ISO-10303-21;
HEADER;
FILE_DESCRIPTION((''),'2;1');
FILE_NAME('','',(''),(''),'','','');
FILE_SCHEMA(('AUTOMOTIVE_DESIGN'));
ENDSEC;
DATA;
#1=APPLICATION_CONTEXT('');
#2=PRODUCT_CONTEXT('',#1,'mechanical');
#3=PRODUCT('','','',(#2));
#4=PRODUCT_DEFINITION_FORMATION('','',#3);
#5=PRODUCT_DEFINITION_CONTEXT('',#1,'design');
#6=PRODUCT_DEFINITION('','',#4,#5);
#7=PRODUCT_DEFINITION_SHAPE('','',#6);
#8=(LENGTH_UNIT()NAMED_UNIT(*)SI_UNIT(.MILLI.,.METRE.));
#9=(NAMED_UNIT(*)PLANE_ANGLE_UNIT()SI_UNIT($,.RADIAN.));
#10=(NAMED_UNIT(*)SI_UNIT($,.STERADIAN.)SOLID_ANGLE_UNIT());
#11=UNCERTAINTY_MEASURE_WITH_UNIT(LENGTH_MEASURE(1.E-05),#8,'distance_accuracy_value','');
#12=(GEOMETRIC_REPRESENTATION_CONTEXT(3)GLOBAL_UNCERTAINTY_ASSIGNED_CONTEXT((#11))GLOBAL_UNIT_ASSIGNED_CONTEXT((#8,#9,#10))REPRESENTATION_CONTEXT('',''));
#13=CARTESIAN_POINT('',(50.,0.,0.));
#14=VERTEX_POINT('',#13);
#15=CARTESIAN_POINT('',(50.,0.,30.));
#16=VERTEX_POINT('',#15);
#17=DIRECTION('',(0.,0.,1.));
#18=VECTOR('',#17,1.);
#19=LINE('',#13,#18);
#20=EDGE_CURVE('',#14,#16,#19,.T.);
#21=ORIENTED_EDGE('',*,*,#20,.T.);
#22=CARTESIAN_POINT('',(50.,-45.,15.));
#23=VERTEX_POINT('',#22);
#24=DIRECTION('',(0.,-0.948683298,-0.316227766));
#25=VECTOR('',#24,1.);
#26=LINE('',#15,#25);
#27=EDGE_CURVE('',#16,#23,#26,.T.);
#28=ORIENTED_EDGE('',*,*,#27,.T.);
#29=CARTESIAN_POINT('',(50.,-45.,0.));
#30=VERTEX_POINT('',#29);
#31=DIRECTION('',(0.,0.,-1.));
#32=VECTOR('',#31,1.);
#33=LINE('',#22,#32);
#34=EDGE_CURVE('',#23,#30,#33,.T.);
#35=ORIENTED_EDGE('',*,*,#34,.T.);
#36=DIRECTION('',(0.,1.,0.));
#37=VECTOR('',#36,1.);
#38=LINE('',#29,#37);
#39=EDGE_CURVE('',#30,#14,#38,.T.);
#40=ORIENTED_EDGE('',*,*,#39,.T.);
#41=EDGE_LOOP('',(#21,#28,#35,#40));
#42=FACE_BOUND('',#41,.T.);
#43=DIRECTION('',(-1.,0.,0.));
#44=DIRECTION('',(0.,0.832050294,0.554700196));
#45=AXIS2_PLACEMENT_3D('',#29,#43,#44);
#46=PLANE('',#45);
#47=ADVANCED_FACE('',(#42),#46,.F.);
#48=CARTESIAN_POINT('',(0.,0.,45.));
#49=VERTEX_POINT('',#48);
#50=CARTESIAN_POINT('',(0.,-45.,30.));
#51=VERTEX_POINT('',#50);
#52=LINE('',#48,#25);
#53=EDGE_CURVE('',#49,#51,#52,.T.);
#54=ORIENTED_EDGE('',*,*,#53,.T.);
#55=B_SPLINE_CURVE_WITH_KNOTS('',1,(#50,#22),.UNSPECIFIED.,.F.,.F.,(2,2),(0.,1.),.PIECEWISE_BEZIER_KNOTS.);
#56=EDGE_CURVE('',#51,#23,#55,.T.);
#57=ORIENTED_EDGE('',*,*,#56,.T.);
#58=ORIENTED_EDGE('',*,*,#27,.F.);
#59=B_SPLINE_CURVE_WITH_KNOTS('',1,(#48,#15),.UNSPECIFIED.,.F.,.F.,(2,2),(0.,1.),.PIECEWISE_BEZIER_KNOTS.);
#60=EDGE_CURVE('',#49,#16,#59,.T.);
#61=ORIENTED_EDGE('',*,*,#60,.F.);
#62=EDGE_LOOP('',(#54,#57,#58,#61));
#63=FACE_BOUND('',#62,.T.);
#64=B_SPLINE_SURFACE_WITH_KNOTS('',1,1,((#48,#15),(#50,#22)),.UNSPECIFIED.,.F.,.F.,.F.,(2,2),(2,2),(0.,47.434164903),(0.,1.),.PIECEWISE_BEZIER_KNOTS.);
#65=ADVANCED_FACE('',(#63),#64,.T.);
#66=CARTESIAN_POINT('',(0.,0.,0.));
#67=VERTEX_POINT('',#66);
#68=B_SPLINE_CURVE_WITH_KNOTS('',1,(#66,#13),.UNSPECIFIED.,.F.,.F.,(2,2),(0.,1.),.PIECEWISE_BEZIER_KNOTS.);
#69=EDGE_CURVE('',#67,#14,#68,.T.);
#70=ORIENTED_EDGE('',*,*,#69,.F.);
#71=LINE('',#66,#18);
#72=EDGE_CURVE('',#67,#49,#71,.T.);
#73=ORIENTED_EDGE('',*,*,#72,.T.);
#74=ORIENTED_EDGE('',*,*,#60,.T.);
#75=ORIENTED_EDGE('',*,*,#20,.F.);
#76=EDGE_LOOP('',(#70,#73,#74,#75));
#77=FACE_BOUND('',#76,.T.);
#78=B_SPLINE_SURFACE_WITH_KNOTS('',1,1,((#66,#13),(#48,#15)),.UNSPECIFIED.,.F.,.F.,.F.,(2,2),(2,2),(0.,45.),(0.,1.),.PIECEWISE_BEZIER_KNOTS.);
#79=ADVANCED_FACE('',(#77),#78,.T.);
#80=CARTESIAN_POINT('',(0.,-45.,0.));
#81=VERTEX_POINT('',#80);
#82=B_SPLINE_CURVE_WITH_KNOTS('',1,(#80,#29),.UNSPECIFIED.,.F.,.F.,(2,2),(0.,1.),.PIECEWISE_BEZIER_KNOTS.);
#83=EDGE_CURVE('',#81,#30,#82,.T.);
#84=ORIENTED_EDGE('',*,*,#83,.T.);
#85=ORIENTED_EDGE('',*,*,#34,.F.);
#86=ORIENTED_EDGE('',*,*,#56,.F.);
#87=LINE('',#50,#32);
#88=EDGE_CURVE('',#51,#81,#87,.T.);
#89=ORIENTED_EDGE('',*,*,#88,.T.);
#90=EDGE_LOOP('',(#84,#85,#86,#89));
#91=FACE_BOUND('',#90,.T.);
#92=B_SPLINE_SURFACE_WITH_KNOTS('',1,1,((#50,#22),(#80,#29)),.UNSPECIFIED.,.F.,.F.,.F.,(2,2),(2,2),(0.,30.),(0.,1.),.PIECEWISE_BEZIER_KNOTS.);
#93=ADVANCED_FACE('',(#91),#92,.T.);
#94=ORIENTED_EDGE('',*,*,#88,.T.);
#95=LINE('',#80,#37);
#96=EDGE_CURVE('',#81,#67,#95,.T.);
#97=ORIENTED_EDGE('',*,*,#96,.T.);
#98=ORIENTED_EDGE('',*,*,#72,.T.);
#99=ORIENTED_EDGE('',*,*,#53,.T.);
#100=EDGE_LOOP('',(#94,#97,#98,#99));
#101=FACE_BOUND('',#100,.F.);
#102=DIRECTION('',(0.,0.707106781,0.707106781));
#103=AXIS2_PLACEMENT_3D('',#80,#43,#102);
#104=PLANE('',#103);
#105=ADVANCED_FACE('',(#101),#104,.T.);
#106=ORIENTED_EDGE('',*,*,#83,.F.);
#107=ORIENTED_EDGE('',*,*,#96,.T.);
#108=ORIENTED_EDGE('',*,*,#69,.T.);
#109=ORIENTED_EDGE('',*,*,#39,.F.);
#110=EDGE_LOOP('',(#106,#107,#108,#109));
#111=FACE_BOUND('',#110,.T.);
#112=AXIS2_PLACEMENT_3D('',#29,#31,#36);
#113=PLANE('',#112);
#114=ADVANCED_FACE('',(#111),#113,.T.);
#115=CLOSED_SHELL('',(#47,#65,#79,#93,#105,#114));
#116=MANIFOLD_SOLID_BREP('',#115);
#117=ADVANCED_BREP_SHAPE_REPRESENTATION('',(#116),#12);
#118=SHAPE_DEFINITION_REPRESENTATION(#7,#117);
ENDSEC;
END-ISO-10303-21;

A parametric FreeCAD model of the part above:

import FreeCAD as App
import Part
import Sketcher


def add_polygon(sketch, points):
    """Adds a closed chain of lines whose ends are joined by coincident constraints."""
    first, n = sketch.GeometryCount, len(points)
    for a, b in zip(points, points[1:] + points[:1]):
        sketch.addGeometry(Part.LineSegment(App.Vector(*a, 0), App.Vector(*b, 0)), False)
    for i in range(n):
        sketch.addConstraint(Sketcher.Constraint("Coincident", first + i, 2, first + (i + 1) % n, 1))

doc = App.newDocument("Part")
params = doc.addObject("Spreadsheet::Sheet", "Params")
for row, (alias, value) in enumerate([
    ("sketch1_width", "45 mm"),
    ("sketch1_height", "30 mm"),
    ("sketch2_width", "45 mm"),
    ("sketch2_height", "30 mm"),
    ("sketch2_height2", "15 mm"),
], start=1):
    params.set(f"A{row}", alias)
    params.set(f"B{row}", "=" + value)
    params.setAlias(f"B{row}", alias)

body = doc.addObject("PartDesign::Body", "Body")

# Sketch on YZ plane
sketch1 = body.newObject("Sketcher::SketchObject", "Sketch")
sketch1.AttachmentSupport = (doc.getObject("YZ_Plane"), [""])
sketch1.MapMode = "FlatFace"
add_polygon(sketch1, [(-45, 0), (0, 0), (0, 45), (-45, 30)])  # lines 0-3
sketch1.addConstraint([
    Sketcher.Constraint("Horizontal", 0),
    Sketcher.Constraint("Vertical", 1),
    Sketcher.Constraint("Vertical", 3),
    Sketcher.Constraint("Coincident", 0, 2, -1, 1),
    Sketcher.Constraint("Equal", 0, 1),
    Sketcher.Constraint("DistanceX", 0, 1, 0, 2, 45.0),
    Sketcher.Constraint("DistanceY", 3, 2, 3, 1, 30.0),
])
sketch1.setExpression("Constraints[9]", "Params.sketch1_width")
sketch1.setExpression("Constraints[10]", "Params.sketch1_height")

# Sketch on YZ plane
sketch2 = body.newObject("Sketcher::SketchObject", "Sketch001")
sketch2.AttachmentSupport = (doc.getObject("YZ_Plane"), [""])
sketch2.MapMode = "FlatFace"
sketch2.AttachmentOffset = App.Placement(App.Vector(0, 0, 50), App.Rotation())
add_polygon(sketch2, [(-45, 0), (0, 0), (0, 30), (-45, 15)])  # lines 0-3
sketch2.addConstraint([
    Sketcher.Constraint("Horizontal", 0),
    Sketcher.Constraint("Vertical", 1),
    Sketcher.Constraint("Vertical", 3),
    Sketcher.Constraint("Coincident", 0, 2, -1, 1),
    Sketcher.Constraint("DistanceX", 0, 1, 0, 2, 45.0),
    Sketcher.Constraint("DistanceY", 1, 1, 1, 2, 30.0),
    Sketcher.Constraint("DistanceY", 3, 2, 3, 1, 15.0),
])
sketch2.setExpression("Constraints[8]", "Params.sketch2_width")
sketch2.setExpression("Constraints[9]", "Params.sketch2_height")
sketch2.setExpression("Constraints[10]", "Params.sketch2_height2")

additiveloft = body.newObject("PartDesign::AdditiveLoft", "AdditiveLoft")
additiveloft.Profile = sketch1
additiveloft.Sections = [sketch2]

doc.recompute()
